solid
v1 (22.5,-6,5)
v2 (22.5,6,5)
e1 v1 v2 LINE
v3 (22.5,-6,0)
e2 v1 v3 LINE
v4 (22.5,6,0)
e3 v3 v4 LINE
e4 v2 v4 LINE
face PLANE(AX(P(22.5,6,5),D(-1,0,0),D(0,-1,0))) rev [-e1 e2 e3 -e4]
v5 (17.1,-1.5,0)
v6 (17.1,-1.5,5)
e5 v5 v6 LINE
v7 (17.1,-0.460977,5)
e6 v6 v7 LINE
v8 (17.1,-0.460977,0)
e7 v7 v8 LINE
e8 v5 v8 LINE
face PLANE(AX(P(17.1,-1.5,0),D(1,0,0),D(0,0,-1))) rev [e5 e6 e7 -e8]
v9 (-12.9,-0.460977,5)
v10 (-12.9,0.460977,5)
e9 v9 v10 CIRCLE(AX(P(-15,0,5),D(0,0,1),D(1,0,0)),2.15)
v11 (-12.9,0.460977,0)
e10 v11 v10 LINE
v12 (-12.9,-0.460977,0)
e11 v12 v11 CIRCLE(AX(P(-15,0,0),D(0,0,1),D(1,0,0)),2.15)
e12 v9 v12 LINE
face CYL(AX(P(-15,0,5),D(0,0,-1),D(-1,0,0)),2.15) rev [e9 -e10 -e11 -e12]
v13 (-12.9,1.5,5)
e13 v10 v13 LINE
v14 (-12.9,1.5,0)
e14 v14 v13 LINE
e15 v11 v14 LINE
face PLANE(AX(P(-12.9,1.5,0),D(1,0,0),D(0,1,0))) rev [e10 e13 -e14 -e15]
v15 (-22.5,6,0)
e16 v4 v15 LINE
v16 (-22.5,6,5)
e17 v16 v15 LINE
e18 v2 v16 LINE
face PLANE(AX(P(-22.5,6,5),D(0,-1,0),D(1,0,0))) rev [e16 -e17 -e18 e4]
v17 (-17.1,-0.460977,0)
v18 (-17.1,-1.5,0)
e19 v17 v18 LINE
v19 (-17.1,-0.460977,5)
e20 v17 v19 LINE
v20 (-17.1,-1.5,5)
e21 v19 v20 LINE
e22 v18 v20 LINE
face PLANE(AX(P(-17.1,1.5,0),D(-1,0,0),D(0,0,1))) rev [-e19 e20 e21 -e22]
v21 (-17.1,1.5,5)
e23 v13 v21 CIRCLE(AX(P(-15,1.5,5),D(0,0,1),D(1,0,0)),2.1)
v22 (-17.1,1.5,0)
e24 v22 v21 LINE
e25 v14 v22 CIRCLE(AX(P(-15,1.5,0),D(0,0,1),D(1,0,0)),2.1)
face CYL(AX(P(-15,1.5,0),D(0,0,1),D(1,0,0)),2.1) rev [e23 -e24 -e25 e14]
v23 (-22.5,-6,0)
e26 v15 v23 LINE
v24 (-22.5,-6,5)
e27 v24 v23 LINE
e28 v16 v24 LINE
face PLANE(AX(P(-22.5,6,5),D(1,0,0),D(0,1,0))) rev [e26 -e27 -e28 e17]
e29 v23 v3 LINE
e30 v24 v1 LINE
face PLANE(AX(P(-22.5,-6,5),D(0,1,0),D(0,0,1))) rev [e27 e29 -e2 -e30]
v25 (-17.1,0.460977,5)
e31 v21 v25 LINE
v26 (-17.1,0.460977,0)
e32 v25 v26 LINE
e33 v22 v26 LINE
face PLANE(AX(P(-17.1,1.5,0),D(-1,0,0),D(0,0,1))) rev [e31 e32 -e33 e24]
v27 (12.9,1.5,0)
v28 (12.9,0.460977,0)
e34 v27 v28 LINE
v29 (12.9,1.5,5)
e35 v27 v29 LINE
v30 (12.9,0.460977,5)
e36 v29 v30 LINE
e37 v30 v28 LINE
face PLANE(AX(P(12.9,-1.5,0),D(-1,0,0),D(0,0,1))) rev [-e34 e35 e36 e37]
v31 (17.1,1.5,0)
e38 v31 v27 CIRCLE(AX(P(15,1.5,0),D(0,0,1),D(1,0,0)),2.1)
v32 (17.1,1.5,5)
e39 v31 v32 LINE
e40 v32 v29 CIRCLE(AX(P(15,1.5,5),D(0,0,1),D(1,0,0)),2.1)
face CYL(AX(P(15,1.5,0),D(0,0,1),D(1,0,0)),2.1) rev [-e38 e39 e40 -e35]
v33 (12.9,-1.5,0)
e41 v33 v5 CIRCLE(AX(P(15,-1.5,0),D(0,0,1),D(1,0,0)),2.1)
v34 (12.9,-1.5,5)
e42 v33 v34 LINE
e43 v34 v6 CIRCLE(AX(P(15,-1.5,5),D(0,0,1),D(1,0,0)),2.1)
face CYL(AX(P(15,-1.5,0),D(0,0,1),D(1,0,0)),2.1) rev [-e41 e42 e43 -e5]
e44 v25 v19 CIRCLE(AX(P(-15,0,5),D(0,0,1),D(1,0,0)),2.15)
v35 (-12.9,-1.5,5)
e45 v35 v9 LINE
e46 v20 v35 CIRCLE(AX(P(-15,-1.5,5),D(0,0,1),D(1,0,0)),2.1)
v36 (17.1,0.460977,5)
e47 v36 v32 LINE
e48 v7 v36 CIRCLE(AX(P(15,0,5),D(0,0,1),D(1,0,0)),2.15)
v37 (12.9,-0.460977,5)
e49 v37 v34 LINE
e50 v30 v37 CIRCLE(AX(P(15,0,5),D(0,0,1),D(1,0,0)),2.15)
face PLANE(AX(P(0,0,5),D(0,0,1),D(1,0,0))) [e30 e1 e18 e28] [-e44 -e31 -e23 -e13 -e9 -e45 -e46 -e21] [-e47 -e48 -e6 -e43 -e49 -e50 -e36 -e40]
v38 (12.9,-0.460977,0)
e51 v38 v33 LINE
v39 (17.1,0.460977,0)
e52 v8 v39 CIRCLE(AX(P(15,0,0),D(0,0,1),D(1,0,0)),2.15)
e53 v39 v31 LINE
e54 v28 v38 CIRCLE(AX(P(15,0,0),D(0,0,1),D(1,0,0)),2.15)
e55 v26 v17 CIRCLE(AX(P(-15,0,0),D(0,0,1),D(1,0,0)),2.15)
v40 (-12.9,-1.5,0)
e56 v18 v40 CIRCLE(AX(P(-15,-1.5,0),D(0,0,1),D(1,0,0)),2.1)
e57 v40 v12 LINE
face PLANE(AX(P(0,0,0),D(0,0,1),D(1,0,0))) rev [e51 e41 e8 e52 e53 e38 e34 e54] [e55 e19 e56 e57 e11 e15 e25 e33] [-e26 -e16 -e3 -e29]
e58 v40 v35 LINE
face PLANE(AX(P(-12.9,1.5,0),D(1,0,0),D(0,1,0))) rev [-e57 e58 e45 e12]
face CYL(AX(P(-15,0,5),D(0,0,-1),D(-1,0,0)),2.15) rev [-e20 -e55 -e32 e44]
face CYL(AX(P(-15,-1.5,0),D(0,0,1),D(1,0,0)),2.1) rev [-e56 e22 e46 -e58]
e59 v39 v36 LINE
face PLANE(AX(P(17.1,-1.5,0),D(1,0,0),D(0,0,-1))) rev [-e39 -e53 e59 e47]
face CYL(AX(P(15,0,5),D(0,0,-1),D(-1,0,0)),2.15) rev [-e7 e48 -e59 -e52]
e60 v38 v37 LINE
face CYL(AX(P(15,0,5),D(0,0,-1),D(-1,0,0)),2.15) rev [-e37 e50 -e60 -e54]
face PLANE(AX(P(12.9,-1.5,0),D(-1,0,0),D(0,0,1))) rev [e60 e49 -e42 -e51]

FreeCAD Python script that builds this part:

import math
import FreeCAD as App
import Part
import Sketcher
from FreeCAD import Vector
Q = App.Units.Quantity


def add_polygon(sketch, points):
    """Adds a closed chain of lines whose ends are joined by coincident constraints."""
    first, n = sketch.GeometryCount, len(points)
    for a, b in zip(points, points[1:] + points[:1]):
        sketch.addGeometry(Part.LineSegment(App.Vector(*a, 0), App.Vector(*b, 0)), False)
    for i in range(n):
        sketch.addConstraint(Sketcher.Constraint("Coincident", first + i, 2, first + (i + 1) % n, 1))

doc = App.newDocument("Part")
body = doc.addObject("PartDesign::Body", "Body")

# Sketch on XY plane
sketch1 = body.newObject("Sketcher::SketchObject", "Sketch")
sketch1.AttachmentSupport = (doc.getObject("XY_Plane"), [""])
sketch1.MapMode = "FlatFace"
add_polygon(sketch1, [(-22.5, 6), (-22.5, -6), (22.5, -6), (22.5, 6)])  # lines 0-3
sketch1.addGeometry(Part.Circle(Vector(-15, 0, 0), Vector(0, 0, 1), 2.15), False)  # 4
sketch1.addGeometry(Part.Circle(Vector(15, 0, 0), Vector(0, 0, 1), 2.15), False)  # 5
sketch1.addConstraint(Sketcher.Constraint("Vertical", 0))
sketch1.addConstraint(Sketcher.Constraint("Horizontal", 1))
sketch1.addConstraint(Sketcher.Constraint("Vertical", 2))
sketch1.addConstraint(Sketcher.Constraint("Horizontal", 3))
sketch1.addConstraint(Sketcher.Constraint("Equal", 4, 5))
sketch1.addConstraint(Sketcher.Constraint("Symmetric", 4, 3, 5, 3, -1, 1))
sketch1.addConstraint(Sketcher.Constraint("Symmetric", 0, 2, 2, 2, -1, 1))
sketch1.addConstraint(Sketcher.Constraint("PointOnObject", 4, 3, -1))
sketch1.addConstraint(Sketcher.Constraint("Diameter", 4, Q("4.3 mm")))
sketch1.addConstraint(Sketcher.Constraint("DistanceX", 1, 1, 1, 2, Q("45 mm")))
sketch1.addConstraint(Sketcher.Constraint("DistanceY", 0, 2, 0, 1, Q("12 mm")))
sketch1.addConstraint(Sketcher.Constraint("DistanceX", 4, 3, -1, 1, Q("15 mm")))
pad1 = body.newObject("PartDesign::Pad", "Pad")
pad1.Profile = sketch1
pad1.Length = 5

# Sketch on XY plane
sketch2 = body.newObject("Sketcher::SketchObject", "Sketch001")
sketch2.AttachmentSupport = (doc.getObject("XY_Plane"), [""])
sketch2.MapMode = "FlatFace"
sketch2.AttachmentOffset = App.Placement(Vector(0, 0, 5), App.Rotation())
sketch2.addGeometry(Part.LineSegment(Vector(-12.9, -1.5, 0), Vector(-12.9, 1.5, 0)), False)
sketch2.addGeometry(Part.ArcOfCircle(Part.Circle(Vector(-15, 1.5, 0), Vector(0, 0, 1), 2.1), math.radians(0), math.radians(180)), False)
sketch2.addGeometry(Part.LineSegment(Vector(-17.1, 1.5, 0), Vector(-17.1, -1.5, 0)), False)
sketch2.addGeometry(Part.ArcOfCircle(Part.Circle(Vector(-15, -1.5, 0), Vector(0, 0, 1), 2.1), math.radians(180), math.radians(360)), False)
sketch2.addGeometry(Part.LineSegment(Vector(12.9, 1.5, 0), Vector(12.9, -1.5, 0)), False)
sketch2.addGeometry(Part.ArcOfCircle(Part.Circle(Vector(15, -1.5, 0), Vector(0, 0, 1), 2.1), math.radians(180), math.radians(360)), False)
sketch2.addGeometry(Part.LineSegment(Vector(17.1, -1.5, 0), Vector(17.1, 1.5, 0)), False)
sketch2.addGeometry(Part.ArcOfCircle(Part.Circle(Vector(15, 1.5, 0), Vector(0, 0, 1), 2.1), math.radians(0), math.radians(180)), False)
sketch2.addConstraint(Sketcher.Constraint("Tangent", 0, 2, 1, 1))
sketch2.addConstraint(Sketcher.Constraint("Tangent", 1, 2, 2, 1))
sketch2.addConstraint(Sketcher.Constraint("Tangent", 2, 2, 3, 1))
sketch2.addConstraint(Sketcher.Constraint("Tangent", 3, 2, 0, 1))
sketch2.addConstraint(Sketcher.Constraint("Tangent", 4, 2, 5, 1))
sketch2.addConstraint(Sketcher.Constraint("Tangent", 5, 2, 6, 1))
sketch2.addConstraint(Sketcher.Constraint("Tangent", 6, 2, 7, 1))
sketch2.addConstraint(Sketcher.Constraint("Tangent", 7, 2, 4, 1))
sketch2.addConstraint(Sketcher.Constraint("Vertical", 0))
sketch2.addConstraint(Sketcher.Constraint("Vertical", 2))
sketch2.addConstraint(Sketcher.Constraint("Vertical", 4))
sketch2.addConstraint(Sketcher.Constraint("Vertical", 6))
sketch2.addConstraint(Sketcher.Constraint("Equal", 3, 5))
sketch2.addConstraint(Sketcher.Constraint("Symmetric", 1, 3, 5, 3, -1, 1))
sketch2.addConstraint(Sketcher.Constraint("Horizontal", 3, 3, 5, 3))
sketch2.addConstraint(Sketcher.Constraint("Horizontal", 1, 3, 7, 3))
sketch2.addConstraint(Sketcher.Constraint("Radius", 1, Q("2.1 mm")))
sketch2.addConstraint(Sketcher.Constraint("DistanceY", 0, 1, 0, 2, Q("3 mm")))
sketch2.addConstraint(Sketcher.Constraint("DistanceX", 1, 3, -1, 1, Q("15 mm")))
pocket1 = body.newObject("PartDesign::Pocket", "Pocket")
pocket1.Profile = sketch2
pocket1.Type = "ThroughAll"

doc.recompute()
